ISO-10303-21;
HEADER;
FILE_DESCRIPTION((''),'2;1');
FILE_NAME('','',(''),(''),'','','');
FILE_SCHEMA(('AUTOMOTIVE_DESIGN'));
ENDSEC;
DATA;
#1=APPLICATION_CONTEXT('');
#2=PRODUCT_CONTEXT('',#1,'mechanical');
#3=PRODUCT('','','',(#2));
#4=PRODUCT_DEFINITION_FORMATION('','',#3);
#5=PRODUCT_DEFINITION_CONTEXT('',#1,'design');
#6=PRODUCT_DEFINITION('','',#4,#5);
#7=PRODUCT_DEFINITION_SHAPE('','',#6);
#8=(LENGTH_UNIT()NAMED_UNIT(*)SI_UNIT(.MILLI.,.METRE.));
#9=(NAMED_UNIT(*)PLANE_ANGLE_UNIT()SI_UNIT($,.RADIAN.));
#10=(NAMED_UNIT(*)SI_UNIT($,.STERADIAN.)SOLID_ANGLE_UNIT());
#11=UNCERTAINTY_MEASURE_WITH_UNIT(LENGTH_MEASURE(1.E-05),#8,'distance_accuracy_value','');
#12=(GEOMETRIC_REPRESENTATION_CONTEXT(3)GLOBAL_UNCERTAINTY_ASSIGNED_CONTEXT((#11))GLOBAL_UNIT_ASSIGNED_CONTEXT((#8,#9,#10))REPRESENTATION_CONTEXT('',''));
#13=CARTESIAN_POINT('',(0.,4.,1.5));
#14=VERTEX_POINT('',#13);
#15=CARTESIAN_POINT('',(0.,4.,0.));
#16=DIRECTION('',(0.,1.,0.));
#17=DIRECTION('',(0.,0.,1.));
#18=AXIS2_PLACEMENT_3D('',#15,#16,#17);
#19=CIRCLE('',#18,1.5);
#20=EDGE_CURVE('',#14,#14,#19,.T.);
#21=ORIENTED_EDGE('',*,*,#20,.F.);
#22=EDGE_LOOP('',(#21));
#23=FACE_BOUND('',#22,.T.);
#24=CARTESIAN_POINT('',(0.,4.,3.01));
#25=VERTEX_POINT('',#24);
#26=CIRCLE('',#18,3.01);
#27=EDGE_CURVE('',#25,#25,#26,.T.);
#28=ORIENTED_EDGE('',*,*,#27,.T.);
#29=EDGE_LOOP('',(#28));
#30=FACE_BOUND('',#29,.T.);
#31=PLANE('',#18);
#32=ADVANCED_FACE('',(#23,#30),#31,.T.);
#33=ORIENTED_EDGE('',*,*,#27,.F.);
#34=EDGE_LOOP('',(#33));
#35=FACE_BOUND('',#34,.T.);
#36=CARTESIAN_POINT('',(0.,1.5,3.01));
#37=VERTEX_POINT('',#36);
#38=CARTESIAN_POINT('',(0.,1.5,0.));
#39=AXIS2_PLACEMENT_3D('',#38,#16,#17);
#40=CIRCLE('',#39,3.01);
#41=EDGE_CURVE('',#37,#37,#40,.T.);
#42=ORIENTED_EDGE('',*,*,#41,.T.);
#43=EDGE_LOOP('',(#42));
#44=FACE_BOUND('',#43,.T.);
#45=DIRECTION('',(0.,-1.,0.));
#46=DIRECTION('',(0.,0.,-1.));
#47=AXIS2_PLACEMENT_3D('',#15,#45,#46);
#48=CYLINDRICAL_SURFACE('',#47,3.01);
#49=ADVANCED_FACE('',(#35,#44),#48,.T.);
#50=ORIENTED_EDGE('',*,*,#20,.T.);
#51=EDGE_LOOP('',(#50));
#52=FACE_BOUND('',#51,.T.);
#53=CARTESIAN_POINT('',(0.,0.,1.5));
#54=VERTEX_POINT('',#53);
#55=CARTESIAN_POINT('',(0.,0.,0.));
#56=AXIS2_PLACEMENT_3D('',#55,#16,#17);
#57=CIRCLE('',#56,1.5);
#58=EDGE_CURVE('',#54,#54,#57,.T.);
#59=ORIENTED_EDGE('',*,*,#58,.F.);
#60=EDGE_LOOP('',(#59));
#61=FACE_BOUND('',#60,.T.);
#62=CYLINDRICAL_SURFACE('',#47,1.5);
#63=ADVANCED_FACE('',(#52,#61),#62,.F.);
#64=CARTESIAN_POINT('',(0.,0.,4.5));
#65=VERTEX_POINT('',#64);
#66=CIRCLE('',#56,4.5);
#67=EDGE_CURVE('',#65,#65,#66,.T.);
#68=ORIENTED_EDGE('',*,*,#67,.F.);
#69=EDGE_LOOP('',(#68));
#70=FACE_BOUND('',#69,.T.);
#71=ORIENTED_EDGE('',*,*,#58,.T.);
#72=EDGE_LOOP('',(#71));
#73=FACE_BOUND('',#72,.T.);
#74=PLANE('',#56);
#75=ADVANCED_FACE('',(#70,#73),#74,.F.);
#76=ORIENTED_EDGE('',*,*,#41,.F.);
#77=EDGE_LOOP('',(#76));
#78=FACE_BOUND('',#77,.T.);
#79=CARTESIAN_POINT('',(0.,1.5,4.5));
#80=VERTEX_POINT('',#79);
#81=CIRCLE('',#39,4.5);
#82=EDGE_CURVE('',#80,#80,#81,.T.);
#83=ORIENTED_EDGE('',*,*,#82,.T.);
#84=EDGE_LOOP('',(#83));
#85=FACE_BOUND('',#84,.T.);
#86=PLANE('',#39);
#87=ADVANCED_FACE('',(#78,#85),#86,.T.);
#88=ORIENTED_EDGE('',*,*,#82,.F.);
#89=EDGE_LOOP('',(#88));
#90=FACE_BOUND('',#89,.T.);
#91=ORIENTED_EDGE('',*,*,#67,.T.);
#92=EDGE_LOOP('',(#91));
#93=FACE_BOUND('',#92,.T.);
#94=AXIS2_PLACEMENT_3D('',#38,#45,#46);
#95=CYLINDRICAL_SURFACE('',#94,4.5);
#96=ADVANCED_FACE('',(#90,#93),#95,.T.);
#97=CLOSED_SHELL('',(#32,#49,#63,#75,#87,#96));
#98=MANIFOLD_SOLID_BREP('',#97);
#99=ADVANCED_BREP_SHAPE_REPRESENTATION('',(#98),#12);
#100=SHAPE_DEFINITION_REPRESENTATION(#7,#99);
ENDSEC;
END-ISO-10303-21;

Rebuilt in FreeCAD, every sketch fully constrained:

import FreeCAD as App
import Part
import Sketcher
Q = App.Units.Quantity

doc = App.newDocument("Part")
body = doc.addObject("PartDesign::Body", "Body")

# Sketch on XZ plane
sketch1 = doc.addObject("Sketcher::SketchObject", "Sketch")
body.addObject(sketch1)
sketch1.AttachmentSupport = (doc.XZ_Plane, [""])
sketch1.MapMode = "FlatFace"
sketch1.addGeometry([
    Part.Circle(App.Vector(0, 0, 0), App.Vector(0, 0, 1), 3.01),
    Part.Circle(App.Vector(0, 0, 0), App.Vector(0, 0, 1), 1.5),
], False)
sketch1.addConstraint([
    Sketcher.Constraint("Coincident", 0, 3, -1, 1),
    Sketcher.Constraint("Coincident", 1, 3, -1, 1),
    Sketcher.Constraint("Diameter", 1, Q("3 mm")),
    Sketcher.Constraint("Diameter", 0, Q("6.02 mm")),
])
pad1 = doc.addObject("PartDesign::Pad", "Pad")
body.addObject(pad1)
pad1.Profile = sketch1
pad1.Length = 4
pad1.Reversed = True

# Sketch on XZ plane
sketch2 = doc.addObject("Sketcher::SketchObject", "Sketch001")
body.addObject(sketch2)
sketch2.AttachmentSupport = (doc.XZ_Plane, [""])
sketch2.MapMode = "FlatFace"
sketch2.addGeometry([
    Part.Circle(App.Vector(0, 0, 0), App.Vector(0, 0, 1), 4.5),
    Part.Circle(App.Vector(0, 0, 0), App.Vector(0, 0, 1), 3.01),
], False)
sketch2.addConstraint([
    Sketcher.Constraint("Coincident", 0, 3, -1, 1),
    Sketcher.Constraint("Coincident", 1, 3, -1, 1),
    Sketcher.Constraint("Diameter", 0, Q("9 mm")),
    Sketcher.Constraint("Diameter", 1, Q("6.02 mm")),
])
pad2 = doc.addObject("PartDesign::Pad", "Pad001")
body.addObject(pad2)
pad2.Profile = sketch2
pad2.Length = 1.5
pad2.Reversed = True

doc.recompute()
